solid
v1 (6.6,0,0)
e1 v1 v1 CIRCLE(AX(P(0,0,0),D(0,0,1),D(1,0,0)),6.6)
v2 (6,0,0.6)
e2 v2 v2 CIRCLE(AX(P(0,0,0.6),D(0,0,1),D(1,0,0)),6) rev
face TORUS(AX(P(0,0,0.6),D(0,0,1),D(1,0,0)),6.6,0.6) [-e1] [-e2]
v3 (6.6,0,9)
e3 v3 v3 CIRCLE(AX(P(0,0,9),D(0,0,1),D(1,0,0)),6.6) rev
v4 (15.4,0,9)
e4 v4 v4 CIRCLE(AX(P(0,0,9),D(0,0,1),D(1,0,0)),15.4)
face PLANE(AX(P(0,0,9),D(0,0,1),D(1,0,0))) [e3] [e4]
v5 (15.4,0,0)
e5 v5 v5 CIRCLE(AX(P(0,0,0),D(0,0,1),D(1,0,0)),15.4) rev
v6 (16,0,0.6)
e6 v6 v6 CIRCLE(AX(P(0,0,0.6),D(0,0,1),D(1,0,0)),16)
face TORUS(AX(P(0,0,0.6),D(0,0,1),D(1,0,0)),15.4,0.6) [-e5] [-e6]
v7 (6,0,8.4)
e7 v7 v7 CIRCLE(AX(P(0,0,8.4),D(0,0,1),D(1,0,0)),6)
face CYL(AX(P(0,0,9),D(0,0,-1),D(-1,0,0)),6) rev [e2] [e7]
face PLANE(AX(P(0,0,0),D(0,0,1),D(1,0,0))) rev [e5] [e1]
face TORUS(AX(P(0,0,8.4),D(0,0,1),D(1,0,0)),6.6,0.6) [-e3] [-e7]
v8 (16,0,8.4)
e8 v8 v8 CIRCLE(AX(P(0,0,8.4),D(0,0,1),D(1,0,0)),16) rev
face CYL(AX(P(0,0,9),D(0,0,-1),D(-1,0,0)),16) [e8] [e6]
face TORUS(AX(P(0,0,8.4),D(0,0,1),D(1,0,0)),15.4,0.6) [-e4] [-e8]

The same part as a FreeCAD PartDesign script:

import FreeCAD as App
import Part
import Sketcher

V = App.Vector
Q = App.Units.Quantity


def edges_at(feature, points):
    """Names of the edges that pass closest to the given points."""
    edges = feature.Shape.Edges
    near = lambda p: min(range(len(edges)), key=lambda i: edges[i].distToShape(Part.Vertex(*p))[0])
    return sorted({f"Edge{near(p) + 1}" for p in points})

doc = App.newDocument("Part")
body = doc.addObject("PartDesign::Body", "Body")

# Sketch on XY plane
sketch1 = body.newObject("Sketcher::SketchObject", "Sketch")
sketch1.AttachmentSupport = (doc.getObject("XY_Plane"), [""])
sketch1.MapMode = "FlatFace"
sketch1.addGeometry([
    Part.Circle(V(0, 0, 0), V(0, 0, 1), 16),
    Part.Circle(V(0, 0, 0), V(0, 0, 1), 6),
], False)
sketch1.addConstraint([
    Sketcher.Constraint("Coincident", 0, 3, -1, 1),
    Sketcher.Constraint("Coincident", 1, 3, -1, 1),
    Sketcher.Constraint("Diameter", 0, Q("32 mm")),
    Sketcher.Constraint("Diameter", 1, Q("12 mm")),
])
pad1 = body.newObject("PartDesign::Pad", "Pad")
pad1.Profile = sketch1
pad1.Length = 9
doc.recompute()

fillet = body.newObject("PartDesign::Fillet", "Fillet")
fillet.Base = (pad1, edges_at(pad1, [
    (-16, 0, 0),
    (-16, 0, 9),
    (-6, 0, 0),
    (-6, 0, 9),
]))
fillet.Radius = 0.6

doc.recompute()
